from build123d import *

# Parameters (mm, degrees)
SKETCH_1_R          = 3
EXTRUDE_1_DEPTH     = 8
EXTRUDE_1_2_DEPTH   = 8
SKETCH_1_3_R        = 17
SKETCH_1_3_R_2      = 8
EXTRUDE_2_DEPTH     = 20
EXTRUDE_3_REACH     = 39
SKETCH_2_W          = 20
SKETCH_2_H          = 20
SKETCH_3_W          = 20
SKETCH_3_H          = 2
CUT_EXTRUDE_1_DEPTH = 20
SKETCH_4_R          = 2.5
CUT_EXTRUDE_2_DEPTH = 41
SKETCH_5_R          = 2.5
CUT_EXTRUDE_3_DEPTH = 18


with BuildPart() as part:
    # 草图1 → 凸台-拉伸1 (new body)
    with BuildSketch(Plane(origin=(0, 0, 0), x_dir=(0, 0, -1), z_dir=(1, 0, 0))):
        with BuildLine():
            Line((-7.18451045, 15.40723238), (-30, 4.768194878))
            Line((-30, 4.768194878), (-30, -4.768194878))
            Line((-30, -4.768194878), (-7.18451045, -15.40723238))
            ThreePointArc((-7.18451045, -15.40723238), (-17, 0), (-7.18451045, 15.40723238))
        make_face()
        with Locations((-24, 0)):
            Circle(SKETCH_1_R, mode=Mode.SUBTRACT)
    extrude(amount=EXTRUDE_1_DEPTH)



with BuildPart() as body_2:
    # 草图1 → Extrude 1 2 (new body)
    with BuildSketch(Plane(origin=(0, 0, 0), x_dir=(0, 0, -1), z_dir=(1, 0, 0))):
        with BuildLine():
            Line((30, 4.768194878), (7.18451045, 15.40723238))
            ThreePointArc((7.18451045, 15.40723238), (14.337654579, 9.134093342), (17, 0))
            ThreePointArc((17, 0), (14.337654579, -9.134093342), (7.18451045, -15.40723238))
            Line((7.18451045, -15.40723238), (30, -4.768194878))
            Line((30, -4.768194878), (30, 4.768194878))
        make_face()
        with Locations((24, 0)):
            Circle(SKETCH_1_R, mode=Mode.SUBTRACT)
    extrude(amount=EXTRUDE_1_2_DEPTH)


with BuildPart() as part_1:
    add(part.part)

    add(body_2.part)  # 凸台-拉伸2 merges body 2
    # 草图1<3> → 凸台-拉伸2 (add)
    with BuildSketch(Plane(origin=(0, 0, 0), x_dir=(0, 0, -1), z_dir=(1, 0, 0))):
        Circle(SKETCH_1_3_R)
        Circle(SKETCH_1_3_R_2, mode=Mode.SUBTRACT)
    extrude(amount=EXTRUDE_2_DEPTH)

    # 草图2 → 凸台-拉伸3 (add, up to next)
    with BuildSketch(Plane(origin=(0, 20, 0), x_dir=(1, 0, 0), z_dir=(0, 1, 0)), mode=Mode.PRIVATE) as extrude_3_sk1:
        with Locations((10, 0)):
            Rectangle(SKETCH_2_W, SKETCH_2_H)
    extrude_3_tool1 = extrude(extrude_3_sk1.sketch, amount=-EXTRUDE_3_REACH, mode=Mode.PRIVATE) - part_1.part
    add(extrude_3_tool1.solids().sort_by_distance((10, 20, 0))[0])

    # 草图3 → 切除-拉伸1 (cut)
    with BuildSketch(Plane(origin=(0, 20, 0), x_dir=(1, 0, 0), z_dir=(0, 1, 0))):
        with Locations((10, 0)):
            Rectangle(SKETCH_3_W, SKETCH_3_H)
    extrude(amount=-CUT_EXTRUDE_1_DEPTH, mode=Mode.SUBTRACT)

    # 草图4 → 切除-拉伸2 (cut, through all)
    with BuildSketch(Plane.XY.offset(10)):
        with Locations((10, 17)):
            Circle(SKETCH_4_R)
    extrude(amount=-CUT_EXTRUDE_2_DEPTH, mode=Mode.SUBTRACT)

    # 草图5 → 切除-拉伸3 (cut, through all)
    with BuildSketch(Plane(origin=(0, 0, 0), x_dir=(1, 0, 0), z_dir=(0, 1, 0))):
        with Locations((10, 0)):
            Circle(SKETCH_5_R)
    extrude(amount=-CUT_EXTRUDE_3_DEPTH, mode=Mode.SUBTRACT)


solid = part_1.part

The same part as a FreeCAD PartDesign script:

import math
import FreeCAD as App
import Part
import Sketcher
from FreeCAD import Vector
Q = App.Units.Quantity

doc = App.newDocument("Part")
params = doc.addObject("Spreadsheet::Sheet", "Params")
for row, (alias, value) in enumerate([
    ("sketch1_diameter", "6 mm"),
    ("sketch1_radius", "17 mm"),
    ("pad1_length", "8 mm"),
    ("sketch2_diameter", "6 mm"),
    ("sketch2_radius", "17 mm"),
    ("pad2_length", "8 mm"),
    ("sketch3_diameter", "34 mm"),
    ("sketch3_diameter2", "16 mm"),
    ("pad3_length", "20 mm"),
    ("sketch4_width", "20 mm"),
    ("sketch5_width", "20 mm"),
    ("sketch5_height", "2 mm"),
    ("pocket1_length", "20 mm"),
    ("sketch6_diameter", "5 mm"),
    ("sketch7_diameter", "5 mm"),
], start=1):
    params.set(f"A{row}", alias)
    params.set(f"B{row}", "=" + value)
    params.setAlias(f"B{row}", alias)

body = doc.addObject("PartDesign::Body", "Body")

# Sketch on YZ plane
sketch1 = body.newObject("Sketcher::SketchObject", "Sketch")
sketch1.AttachmentSupport = (doc.getObject("YZ_Plane"), [""])
sketch1.MapMode = "FlatFace"
sketch1.addGeometry(Part.LineSegment(Vector(15.4, 7.2, 0), Vector(4.8, 30, 0)), False)
sketch1.addGeometry(Part.LineSegment(Vector(4.8, 30, 0), Vector(-4.8, 30, 0)), False)
sketch1.addGeometry(Part.LineSegment(Vector(-4.8, 30, 0), Vector(-15.4, 7.2, 0)), False)
sketch1.addGeometry(Part.ArcOfCircle(Part.Circle(Vector(0, 0, 0), Vector(0, 0, 1), 17), math.radians(25), math.radians(155)), False)
sketch1.addGeometry(Part.Circle(Vector(0, 24, 0), Vector(0, 0, 1), 3), False)
sketch1.addConstraint(Sketcher.Constraint("Coincident", 0, 2, 1, 1))
sketch1.addConstraint(Sketcher.Constraint("Coincident", 1, 2, 2, 1))
sketch1.addConstraint(Sketcher.Constraint("Tangent", 2, 2, 3, 2))
sketch1.addConstraint(Sketcher.Constraint("Tangent", 3, 1, 0, 1))
sketch1.addConstraint(Sketcher.Constraint("Horizontal", 1))
sketch1.addConstraint(Sketcher.Constraint("Coincident", 3, 3, -1, 1))
sketch1.addConstraint(Sketcher.Constraint("PointOnObject", 4, 3, -2))
sketch1.addConstraint(Sketcher.Constraint("Horizontal", 2, 2, 3, 1))
sketch1.addConstraint(Sketcher.Constraint("Diameter", 4, 6.0))
sketch1.addConstraint(Sketcher.Constraint("Radius", 3, 17.0))
sketch1.addConstraint(Sketcher.Constraint("Angle", 0, Q("115 deg")))
sketch1.addConstraint(Sketcher.Constraint("DistanceY", -1, 1, 4, 3, 24.0))
sketch1.addConstraint(Sketcher.Constraint("DistanceY", -1, 1, 0, 2, 30.0))
sketch1.setExpression("Constraints[8]", "Params.sketch1_diameter")
sketch1.setExpression("Constraints[9]", "Params.sketch1_radius")
pad1 = body.newObject("PartDesign::Pad", "Pad")
pad1.Profile = sketch1
pad1.setExpression("Length", "Params.pad1_length")
body2 = doc.addObject("PartDesign::Body", "Body001")

# Sketch on YZ plane
sketch2 = body2.newObject("Sketcher::SketchObject", "Sketch001")
sketch2.AttachmentSupport = (doc.getObject("YZ_Plane001"), [""])
sketch2.MapMode = "FlatFace"
sketch2.addGeometry(Part.LineSegment(Vector(4.8, -30, 0), Vector(15.4, -7.2, 0)), False)
sketch2.addGeometry(Part.ArcOfCircle(Part.Circle(Vector(0, 0, 0), Vector(0, 0, 1), 17), math.radians(-90), math.radians(-25)), False)
sketch2.addGeometry(Part.ArcOfCircle(Part.Circle(Vector(0, 0, 0), Vector(0, 0, 1), 17), math.radians(-155), math.radians(-90)), False)
sketch2.addGeometry(Part.LineSegment(Vector(-15.4, -7.2, 0), Vector(-4.8, -30, 0)), False)
sketch2.addGeometry(Part.LineSegment(Vector(-4.8, -30, 0), Vector(4.8, -30, 0)), False)
sketch2.addGeometry(Part.Circle(Vector(0, -24, 0), Vector(0, 0, 1), 3), False)
sketch2.addConstraint(Sketcher.Constraint("Tangent", 0, 2, 1, 2))
sketch2.addConstraint(Sketcher.Constraint("Tangent", 1, 1, 2, 2))
sketch2.addConstraint(Sketcher.Constraint("Tangent", 2, 1, 3, 1))
sketch2.addConstraint(Sketcher.Constraint("Coincident", 3, 2, 4, 1))
sketch2.addConstraint(Sketcher.Constraint("Coincident", 4, 2, 0, 1))
sketch2.addConstraint(Sketcher.Constraint("Horizontal", 4))
sketch2.addConstraint(Sketcher.Constraint("Coincident", 1, 3, -1, 1))
sketch2.addConstraint(Sketcher.Constraint("Equal", 1, 2))
sketch2.addConstraint(Sketcher.Constraint("PointOnObject", 5, 3, -2))
sketch2.addConstraint(Sketcher.Constraint("PointOnObject", 1, 1, -2))
sketch2.addConstraint(Sketcher.Constraint("Horizontal", 0, 2, 2, 1))
sketch2.addConstraint(Sketcher.Constraint("Diameter", 5, 6.0))
sketch2.addConstraint(Sketcher.Constraint("Radius", 1, 17.0))
sketch2.addConstraint(Sketcher.Constraint("Angle", 0, Q("65 deg")))
sketch2.addConstraint(Sketcher.Constraint("DistanceY", 5, 3, -1, 1, 24.0))
sketch2.addConstraint(Sketcher.Constraint("DistanceY", 3, 2, -1, 1, 30.0))
sketch2.setExpression("Constraints[11]", "Params.sketch2_diameter")
sketch2.setExpression("Constraints[12]", "Params.sketch2_radius")
pad2 = body2.newObject("PartDesign::Pad", "Pad001")
pad2.Profile = sketch2
pad2.setExpression("Length", "Params.pad2_length")
body.AllowCompound = True
doc.recompute()

boolean = body.newObject("PartDesign::Boolean", "Boolean")
boolean.Type = "Fuse"
boolean.addObjects([body2])

# Sketch on YZ plane
sketch3 = body.newObject("Sketcher::SketchObject", "Sketch002")
sketch3.AttachmentSupport = (doc.getObject("YZ_Plane"), [""])
sketch3.MapMode = "FlatFace"
sketch3.addGeometry(Part.Circle(Vector(0, 0, 0), Vector(0, 0, 1), 17), False)
sketch3.addGeometry(Part.Circle(Vector(0, 0, 0), Vector(0, 0, 1), 8), False)
sketch3.addConstraint(Sketcher.Constraint("Coincident", 0, 3, -1, 1))
sketch3.addConstraint(Sketcher.Constraint("Coincident", 1, 3, -1, 1))
sketch3.addConstraint(Sketcher.Constraint("Diameter", 0, 34.0))
sketch3.addConstraint(Sketcher.Constraint("Diameter", 1, 16.0))
sketch3.setExpression("Constraints[2]", "Params.sketch3_diameter")
sketch3.setExpression("Constraints[3]", "Params.sketch3_diameter2")
pad3 = body.newObject("PartDesign::Pad", "Pad002")
pad3.Profile = sketch3
pad3.setExpression("Length", "Params.pad3_length")

# Sketch on XZ plane
sketch4 = body.newObject("Sketcher::SketchObject", "Sketch003")
sketch4.AttachmentSupport = (doc.getObject("XZ_Plane"), [""])
sketch4.MapMode = "FlatFace"
sketch4.AttachmentOffset = App.Placement(Vector(0, 0, -20), App.Rotation())
sketch4.addGeometry(Part.LineSegment(Vector(0, -10, 0), Vector(0, 10, 0)), False)
sketch4.addGeometry(Part.LineSegment(Vector(0, 10, 0), Vector(20, 10, 0)), False)
sketch4.addGeometry(Part.LineSegment(Vector(20, 10, 0), Vector(20, -10, 0)), False)
sketch4.addGeometry(Part.LineSegment(Vector(20, -10, 0), Vector(0, -10, 0)), False)
sketch4.addConstraint(Sketcher.Constraint("Coincident", 0, 2, 1, 1))
sketch4.addConstraint(Sketcher.Constraint("Coincident", 1, 2, 2, 1))
sketch4.addConstraint(Sketcher.Constraint("Coincident", 2, 2, 3, 1))
sketch4.addConstraint(Sketcher.Constraint("Coincident", 3, 2, 0, 1))
sketch4.addConstraint(Sketcher.Constraint("Vertical", 0))
sketch4.addConstraint(Sketcher.Constraint("Horizontal", 1))
sketch4.addConstraint(Sketcher.Constraint("Vertical", 2))
sketch4.addConstraint(Sketcher.Constraint("Horizontal", 3))
sketch4.addConstraint(Sketcher.Constraint("Symmetric", 0, 2, 3, 2, -1, 1))
sketch4.addConstraint(Sketcher.Constraint("Equal", 3, 0))
sketch4.addConstraint(Sketcher.Constraint("DistanceX", 1, 1, 1, 2, 20.0))
sketch4.setExpression("Constraints[10]", "Params.sketch4_width")
pad4 = body.newObject("PartDesign::Pad", "Pad003")
pad4.Profile = sketch4
pad4.Type = "UpToFirst"

# Sketch on XZ plane
sketch5 = body.newObject("Sketcher::SketchObject", "Sketch004")
sketch5.AttachmentSupport = (doc.getObject("XZ_Plane"), [""])
sketch5.MapMode = "FlatFace"
sketch5.AttachmentOffset = App.Placement(Vector(0, 0, -20), App.Rotation())
sketch5.addGeometry(Part.LineSegment(Vector(0, -1, 0), Vector(0, 1, 0)), False)
sketch5.addGeometry(Part.LineSegment(Vector(0, 1, 0), Vector(20, 1, 0)), False)
sketch5.addGeometry(Part.LineSegment(Vector(20, 1, 0), Vector(20, -1, 0)), False)
sketch5.addGeometry(Part.LineSegment(Vector(20, -1, 0), Vector(0, -1, 0)), False)
sketch5.addConstraint(Sketcher.Constraint("Coincident", 0, 2, 1, 1))
sketch5.addConstraint(Sketcher.Constraint("Coincident", 1, 2, 2, 1))
sketch5.addConstraint(Sketcher.Constraint("Coincident", 2, 2, 3, 1))
sketch5.addConstraint(Sketcher.Constraint("Coincident", 3, 2, 0, 1))
sketch5.addConstraint(Sketcher.Constraint("Vertical", 0))
sketch5.addConstraint(Sketcher.Constraint("Horizontal", 1))
sketch5.addConstraint(Sketcher.Constraint("Vertical", 2))
sketch5.addConstraint(Sketcher.Constraint("Horizontal", 3))
sketch5.addConstraint(Sketcher.Constraint("Symmetric", 0, 2, 3, 2, -1, 1))
sketch5.addConstraint(Sketcher.Constraint("DistanceX", 1, 1, 1, 2, 20.0))
sketch5.addConstraint(Sketcher.Constraint("DistanceY", 0, 1, 0, 2, 2.0))
sketch5.setExpression("Constraints[9]", "Params.sketch5_width")
sketch5.setExpression("Constraints[10]", "Params.sketch5_height")
pocket1 = body.newObject("PartDesign::Pocket", "Pocket")
pocket1.Profile = sketch5
pocket1.setExpression("Length", "Params.pocket1_length")
pocket1.Reversed = True

# Sketch on XY plane
sketch6 = body.newObject("Sketcher::SketchObject", "Sketch005")
sketch6.AttachmentSupport = (doc.getObject("XY_Plane"), [""])
sketch6.MapMode = "FlatFace"
sketch6.AttachmentOffset = App.Placement(Vector(0, 0, 10), App.Rotation())
sketch6.addGeometry(Part.Circle(Vector(10, 17, 0), Vector(0, 0, 1), 2.5), False)
sketch6.addConstraint(Sketcher.Constraint("Diameter", 0, 5.0))
sketch6.addConstraint(Sketcher.Constraint("DistanceX", -1, 1, 0, 3, 10.0))
sketch6.addConstraint(Sketcher.Constraint("DistanceY", -1, 1, 0, 3, 17.0))
sketch6.setExpression("Constraints[0]", "Params.sketch6_diameter")
pocket2 = body.newObject("PartDesign::Pocket", "Pocket001")
pocket2.Profile = sketch6
pocket2.Type = "ThroughAll"

# Sketch on XZ plane
sketch7 = body.newObject("Sketcher::SketchObject", "Sketch006")
sketch7.AttachmentSupport = (doc.getObject("XZ_Plane"), [""])
sketch7.MapMode = "FlatFace"
sketch7.addGeometry(Part.Circle(Vector(10, 0, 0), Vector(0, 0, 1), 2.5), False)
sketch7.addConstraint(Sketcher.Constraint("PointOnObject", 0, 3, -1))
sketch7.addConstraint(Sketcher.Constraint("Diameter", 0, 5.0))
sketch7.addConstraint(Sketcher.Constraint("DistanceX", -1, 1, 0, 3, 10.0))
sketch7.setExpression("Constraints[1]", "Params.sketch7_diameter")
pocket3 = body.newObject("PartDesign::Pocket", "Pocket002")
pocket3.Profile = sketch7
pocket3.Type = "ThroughAll"
pocket3.Reversed = True

doc.recompute()
